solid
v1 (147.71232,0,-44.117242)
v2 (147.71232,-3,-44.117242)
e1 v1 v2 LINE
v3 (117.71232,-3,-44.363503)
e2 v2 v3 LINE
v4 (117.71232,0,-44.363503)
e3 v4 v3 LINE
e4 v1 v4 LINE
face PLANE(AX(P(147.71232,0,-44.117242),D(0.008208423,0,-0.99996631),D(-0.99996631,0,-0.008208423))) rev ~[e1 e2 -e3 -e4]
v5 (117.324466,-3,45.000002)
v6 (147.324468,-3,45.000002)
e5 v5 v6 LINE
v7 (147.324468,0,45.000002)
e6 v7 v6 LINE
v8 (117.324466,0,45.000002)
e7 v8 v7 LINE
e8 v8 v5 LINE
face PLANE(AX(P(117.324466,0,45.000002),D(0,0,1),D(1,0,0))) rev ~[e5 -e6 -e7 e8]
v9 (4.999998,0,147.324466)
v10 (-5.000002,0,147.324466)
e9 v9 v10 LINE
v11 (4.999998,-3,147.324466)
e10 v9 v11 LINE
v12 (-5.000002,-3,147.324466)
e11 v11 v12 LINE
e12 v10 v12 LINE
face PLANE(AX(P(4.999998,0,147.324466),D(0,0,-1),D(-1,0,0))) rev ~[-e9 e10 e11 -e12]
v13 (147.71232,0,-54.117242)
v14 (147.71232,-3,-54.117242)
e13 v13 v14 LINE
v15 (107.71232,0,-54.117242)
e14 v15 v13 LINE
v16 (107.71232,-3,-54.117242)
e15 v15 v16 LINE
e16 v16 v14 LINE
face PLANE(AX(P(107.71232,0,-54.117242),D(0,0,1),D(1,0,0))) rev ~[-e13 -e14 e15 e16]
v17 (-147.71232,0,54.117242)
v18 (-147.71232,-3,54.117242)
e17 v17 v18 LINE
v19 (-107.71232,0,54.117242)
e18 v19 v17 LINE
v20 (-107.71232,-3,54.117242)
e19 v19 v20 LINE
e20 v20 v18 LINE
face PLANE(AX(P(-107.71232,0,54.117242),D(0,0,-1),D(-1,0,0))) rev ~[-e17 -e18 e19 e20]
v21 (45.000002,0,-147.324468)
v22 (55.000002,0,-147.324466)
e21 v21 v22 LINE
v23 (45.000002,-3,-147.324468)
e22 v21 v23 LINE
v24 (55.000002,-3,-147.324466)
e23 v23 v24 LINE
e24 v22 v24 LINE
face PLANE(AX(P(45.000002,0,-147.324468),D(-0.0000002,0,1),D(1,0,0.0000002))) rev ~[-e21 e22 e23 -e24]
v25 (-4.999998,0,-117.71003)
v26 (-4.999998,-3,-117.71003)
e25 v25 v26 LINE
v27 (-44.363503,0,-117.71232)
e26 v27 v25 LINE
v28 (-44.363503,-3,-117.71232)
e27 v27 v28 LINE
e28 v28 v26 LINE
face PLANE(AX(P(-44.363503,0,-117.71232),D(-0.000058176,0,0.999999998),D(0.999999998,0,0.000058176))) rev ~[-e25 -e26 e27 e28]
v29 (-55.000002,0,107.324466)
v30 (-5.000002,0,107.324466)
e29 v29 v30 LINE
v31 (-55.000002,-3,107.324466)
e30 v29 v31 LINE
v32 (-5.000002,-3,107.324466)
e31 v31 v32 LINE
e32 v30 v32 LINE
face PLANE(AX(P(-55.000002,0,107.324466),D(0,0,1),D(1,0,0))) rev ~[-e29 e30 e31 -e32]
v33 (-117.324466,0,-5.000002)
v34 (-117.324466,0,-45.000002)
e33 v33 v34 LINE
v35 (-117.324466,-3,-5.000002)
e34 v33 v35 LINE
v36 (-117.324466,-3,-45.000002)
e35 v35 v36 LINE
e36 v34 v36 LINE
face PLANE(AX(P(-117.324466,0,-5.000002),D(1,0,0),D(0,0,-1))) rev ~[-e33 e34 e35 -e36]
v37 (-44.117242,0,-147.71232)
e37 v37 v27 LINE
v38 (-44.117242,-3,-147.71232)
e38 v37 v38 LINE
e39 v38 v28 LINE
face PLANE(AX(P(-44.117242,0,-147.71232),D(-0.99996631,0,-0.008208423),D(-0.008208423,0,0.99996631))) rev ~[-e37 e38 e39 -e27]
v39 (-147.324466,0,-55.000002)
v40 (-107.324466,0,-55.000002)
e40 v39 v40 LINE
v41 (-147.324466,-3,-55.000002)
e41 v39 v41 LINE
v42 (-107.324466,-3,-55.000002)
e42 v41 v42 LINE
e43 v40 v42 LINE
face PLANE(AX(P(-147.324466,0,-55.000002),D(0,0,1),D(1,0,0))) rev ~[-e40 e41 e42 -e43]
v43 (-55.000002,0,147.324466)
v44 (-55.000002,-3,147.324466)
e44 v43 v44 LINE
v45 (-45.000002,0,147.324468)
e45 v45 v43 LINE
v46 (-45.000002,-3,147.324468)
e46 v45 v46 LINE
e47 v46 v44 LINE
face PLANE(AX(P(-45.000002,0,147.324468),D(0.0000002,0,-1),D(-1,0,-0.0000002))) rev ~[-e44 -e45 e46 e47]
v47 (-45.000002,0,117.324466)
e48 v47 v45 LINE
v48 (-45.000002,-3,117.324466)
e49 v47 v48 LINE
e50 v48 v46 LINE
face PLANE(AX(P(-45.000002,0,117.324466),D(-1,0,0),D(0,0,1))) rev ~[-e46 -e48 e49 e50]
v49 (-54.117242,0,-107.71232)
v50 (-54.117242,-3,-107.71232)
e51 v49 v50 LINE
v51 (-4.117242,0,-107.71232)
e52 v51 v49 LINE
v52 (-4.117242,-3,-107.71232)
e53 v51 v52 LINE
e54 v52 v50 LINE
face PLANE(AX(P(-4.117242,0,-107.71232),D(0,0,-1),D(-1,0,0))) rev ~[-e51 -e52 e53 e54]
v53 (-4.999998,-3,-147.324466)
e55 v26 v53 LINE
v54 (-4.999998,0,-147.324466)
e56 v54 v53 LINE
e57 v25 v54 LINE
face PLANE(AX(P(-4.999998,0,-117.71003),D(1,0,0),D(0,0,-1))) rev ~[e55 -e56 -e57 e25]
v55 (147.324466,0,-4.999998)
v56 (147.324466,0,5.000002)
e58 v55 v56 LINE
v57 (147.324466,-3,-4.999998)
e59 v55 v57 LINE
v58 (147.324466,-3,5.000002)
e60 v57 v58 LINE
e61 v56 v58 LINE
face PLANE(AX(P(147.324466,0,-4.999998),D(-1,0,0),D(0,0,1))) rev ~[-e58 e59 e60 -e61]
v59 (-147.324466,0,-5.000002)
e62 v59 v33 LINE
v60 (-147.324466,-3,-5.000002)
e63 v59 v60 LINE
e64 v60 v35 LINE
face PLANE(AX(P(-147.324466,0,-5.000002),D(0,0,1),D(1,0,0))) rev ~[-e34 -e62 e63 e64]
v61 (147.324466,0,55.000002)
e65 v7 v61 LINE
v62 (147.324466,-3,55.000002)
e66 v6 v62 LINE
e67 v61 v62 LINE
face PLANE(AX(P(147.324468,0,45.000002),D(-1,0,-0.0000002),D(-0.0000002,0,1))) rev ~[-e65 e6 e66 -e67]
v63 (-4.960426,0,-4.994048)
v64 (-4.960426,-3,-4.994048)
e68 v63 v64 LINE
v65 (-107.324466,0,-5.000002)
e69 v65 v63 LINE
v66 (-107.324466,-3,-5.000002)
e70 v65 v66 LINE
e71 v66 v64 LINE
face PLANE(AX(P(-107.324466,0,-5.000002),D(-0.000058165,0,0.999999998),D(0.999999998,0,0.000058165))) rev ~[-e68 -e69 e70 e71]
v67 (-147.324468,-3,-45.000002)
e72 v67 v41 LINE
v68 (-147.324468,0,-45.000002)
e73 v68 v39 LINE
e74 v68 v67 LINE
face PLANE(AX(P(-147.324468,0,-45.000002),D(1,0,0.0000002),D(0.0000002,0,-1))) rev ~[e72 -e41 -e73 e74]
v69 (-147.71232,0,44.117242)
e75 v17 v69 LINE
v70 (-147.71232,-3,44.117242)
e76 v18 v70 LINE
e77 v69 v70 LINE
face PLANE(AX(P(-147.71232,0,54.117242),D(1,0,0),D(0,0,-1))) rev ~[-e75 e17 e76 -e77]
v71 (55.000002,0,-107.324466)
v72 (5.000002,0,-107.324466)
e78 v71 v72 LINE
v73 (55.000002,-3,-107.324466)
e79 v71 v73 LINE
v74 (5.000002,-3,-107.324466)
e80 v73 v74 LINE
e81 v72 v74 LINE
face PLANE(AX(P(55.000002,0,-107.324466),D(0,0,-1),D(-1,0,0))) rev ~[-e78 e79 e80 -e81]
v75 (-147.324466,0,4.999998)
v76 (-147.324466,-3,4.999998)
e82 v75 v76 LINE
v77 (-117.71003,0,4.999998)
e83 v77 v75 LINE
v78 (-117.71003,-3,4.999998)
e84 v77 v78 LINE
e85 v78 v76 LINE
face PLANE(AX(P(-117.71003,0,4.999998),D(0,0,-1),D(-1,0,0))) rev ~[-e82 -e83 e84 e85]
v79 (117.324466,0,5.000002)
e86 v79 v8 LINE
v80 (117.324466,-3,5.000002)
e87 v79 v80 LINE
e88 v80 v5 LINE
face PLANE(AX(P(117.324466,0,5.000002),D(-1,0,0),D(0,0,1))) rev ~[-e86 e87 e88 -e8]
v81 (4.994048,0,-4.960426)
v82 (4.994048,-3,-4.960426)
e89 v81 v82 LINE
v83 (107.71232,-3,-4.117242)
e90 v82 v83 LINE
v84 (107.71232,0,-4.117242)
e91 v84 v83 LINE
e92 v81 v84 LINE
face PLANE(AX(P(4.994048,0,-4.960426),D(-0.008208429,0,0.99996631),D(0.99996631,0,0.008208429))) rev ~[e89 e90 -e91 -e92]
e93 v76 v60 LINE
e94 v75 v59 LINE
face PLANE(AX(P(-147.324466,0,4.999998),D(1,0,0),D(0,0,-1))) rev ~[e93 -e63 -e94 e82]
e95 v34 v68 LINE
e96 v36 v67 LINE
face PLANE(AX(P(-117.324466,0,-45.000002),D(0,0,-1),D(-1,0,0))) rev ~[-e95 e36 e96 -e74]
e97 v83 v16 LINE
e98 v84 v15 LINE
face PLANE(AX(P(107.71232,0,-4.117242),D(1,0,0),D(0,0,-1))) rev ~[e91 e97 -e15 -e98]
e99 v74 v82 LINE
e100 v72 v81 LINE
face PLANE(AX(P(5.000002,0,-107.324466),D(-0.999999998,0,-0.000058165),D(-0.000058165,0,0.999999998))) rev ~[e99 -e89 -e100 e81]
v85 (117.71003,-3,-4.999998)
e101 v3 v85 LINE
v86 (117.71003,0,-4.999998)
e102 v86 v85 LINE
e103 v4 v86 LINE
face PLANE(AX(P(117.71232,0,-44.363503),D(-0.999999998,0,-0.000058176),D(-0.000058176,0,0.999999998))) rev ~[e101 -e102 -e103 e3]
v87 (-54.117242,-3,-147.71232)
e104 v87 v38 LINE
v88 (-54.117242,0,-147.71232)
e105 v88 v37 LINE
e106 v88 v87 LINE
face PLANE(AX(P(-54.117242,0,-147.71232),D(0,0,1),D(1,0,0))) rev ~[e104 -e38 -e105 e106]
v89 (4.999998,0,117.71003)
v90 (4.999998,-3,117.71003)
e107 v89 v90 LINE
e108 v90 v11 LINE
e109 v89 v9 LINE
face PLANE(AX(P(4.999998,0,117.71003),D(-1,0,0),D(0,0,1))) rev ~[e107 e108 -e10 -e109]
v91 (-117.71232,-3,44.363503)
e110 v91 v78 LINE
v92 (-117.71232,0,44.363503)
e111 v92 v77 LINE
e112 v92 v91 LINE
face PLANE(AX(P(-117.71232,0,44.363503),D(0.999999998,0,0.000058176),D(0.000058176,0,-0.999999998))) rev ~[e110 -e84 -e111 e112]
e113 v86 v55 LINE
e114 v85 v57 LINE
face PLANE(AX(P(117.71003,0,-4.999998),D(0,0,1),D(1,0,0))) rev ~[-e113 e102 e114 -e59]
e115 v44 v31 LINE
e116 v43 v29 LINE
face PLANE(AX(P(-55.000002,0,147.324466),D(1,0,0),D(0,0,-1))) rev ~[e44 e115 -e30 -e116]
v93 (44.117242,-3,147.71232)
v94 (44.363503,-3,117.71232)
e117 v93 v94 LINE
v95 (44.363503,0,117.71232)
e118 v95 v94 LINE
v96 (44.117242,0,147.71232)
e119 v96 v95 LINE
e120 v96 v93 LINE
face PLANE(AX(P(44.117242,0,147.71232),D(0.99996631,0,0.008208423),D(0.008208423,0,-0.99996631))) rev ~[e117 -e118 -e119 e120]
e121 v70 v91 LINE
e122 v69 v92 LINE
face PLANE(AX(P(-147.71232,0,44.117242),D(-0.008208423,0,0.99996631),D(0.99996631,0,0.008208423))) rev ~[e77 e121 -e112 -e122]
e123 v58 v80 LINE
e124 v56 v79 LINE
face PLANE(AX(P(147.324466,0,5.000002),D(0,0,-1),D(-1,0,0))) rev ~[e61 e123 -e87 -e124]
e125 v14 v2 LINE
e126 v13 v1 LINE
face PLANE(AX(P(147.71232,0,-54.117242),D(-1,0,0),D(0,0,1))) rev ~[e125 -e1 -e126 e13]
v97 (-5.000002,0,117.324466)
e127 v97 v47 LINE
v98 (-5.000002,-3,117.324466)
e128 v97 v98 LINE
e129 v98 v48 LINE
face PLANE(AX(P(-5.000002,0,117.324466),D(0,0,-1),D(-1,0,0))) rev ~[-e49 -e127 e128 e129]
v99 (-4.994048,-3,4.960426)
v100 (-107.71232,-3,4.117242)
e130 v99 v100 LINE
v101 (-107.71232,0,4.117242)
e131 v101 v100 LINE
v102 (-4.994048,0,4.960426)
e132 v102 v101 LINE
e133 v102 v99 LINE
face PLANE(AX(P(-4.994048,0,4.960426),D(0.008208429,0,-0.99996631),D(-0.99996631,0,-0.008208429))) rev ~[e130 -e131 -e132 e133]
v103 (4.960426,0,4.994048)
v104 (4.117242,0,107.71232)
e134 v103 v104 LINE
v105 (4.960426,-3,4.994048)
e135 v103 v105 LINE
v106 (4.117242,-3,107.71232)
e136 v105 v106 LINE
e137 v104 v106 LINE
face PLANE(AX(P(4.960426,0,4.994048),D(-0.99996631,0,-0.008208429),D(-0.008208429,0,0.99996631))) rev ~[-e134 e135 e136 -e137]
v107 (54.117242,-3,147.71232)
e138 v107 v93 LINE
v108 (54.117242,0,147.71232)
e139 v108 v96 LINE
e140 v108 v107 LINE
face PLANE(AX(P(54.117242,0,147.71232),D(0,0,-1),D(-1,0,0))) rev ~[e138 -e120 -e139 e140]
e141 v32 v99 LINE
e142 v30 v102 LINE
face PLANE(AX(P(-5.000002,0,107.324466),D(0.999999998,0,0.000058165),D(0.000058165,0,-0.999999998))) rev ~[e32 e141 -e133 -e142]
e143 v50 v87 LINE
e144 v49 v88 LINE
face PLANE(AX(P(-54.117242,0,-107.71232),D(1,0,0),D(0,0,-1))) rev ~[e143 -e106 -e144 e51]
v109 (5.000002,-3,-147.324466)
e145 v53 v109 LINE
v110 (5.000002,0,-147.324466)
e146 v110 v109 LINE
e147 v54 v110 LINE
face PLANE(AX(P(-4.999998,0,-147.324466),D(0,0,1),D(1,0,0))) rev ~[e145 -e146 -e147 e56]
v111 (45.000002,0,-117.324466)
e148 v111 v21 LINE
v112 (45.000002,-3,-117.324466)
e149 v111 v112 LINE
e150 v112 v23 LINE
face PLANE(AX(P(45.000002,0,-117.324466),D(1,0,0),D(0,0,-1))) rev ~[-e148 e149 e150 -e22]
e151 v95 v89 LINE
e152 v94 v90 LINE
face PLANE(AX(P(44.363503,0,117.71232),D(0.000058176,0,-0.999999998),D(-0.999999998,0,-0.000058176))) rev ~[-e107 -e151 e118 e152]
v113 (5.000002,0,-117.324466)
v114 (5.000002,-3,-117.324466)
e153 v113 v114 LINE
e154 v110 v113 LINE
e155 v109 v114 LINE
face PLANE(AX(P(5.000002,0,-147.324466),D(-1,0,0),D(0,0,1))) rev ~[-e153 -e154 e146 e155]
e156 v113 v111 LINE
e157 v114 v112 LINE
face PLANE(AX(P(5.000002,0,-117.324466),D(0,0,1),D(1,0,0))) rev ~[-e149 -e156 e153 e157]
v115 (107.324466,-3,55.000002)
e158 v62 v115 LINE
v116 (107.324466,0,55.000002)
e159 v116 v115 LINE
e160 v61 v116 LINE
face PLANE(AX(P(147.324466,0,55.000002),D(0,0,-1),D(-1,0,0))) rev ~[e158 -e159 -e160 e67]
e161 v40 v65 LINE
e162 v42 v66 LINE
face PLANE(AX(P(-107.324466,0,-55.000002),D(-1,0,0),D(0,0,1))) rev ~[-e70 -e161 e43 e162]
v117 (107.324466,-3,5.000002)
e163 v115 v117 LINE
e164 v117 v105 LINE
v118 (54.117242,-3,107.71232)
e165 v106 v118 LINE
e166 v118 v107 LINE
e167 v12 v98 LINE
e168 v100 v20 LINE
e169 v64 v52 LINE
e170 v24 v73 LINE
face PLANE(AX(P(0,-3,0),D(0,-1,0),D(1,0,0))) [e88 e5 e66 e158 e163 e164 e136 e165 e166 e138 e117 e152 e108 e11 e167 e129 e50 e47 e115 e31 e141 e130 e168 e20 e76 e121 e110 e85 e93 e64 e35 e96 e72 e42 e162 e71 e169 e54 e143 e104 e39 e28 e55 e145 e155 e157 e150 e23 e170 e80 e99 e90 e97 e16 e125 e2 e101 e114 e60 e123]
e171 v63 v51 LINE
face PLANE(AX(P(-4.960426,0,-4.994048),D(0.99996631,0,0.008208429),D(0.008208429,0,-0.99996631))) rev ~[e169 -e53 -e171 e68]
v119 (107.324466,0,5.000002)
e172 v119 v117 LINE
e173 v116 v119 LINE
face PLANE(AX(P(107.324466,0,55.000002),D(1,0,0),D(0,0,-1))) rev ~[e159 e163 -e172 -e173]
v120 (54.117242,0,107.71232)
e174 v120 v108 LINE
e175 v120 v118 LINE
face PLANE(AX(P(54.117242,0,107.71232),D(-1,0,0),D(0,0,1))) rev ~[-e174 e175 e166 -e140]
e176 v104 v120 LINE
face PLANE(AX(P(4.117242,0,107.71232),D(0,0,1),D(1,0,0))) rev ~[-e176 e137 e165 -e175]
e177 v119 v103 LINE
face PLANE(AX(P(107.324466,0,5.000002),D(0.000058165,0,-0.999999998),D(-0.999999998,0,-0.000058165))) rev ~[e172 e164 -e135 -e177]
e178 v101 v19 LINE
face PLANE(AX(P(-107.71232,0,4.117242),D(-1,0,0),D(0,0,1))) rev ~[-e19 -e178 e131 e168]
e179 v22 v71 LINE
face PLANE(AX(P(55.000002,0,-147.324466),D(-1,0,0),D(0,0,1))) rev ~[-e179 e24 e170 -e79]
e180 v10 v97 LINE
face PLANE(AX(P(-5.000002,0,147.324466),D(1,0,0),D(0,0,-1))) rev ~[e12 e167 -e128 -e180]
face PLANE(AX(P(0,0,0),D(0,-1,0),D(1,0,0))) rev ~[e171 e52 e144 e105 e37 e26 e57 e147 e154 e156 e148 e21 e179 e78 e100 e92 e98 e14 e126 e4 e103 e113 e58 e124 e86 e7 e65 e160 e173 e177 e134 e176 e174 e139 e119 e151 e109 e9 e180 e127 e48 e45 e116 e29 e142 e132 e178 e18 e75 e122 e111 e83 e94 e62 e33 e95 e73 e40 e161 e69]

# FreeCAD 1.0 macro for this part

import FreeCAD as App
import Part
import Sketcher

V = App.Vector


def add_polygon(sketch, points):
    """Adds a closed chain of lines whose ends are joined by coincident constraints."""
    first, n = sketch.GeometryCount, len(points)
    for a, b in zip(points, points[1:] + points[:1]):
        sketch.addGeometry(Part.LineSegment(App.Vector(*a, 0), App.Vector(*b, 0)), False)
    for i in range(n):
        sketch.addConstraint(Sketcher.Constraint("Coincident", first + i, 2, first + (i + 1) % n, 1))

doc = App.newDocument("Part")
body = doc.addObject("PartDesign::Body", "Body")

sketch1 = doc.addObject("Sketcher::SketchObject", "Sketch")
body.addObject(sketch1)
sketch1.AttachmentSupport = (doc.XZ_Plane, [""])
sketch1.MapMode = "FlatFace"
add_polygon(sketch1, [(5, 147), (-5, 147), (-5, 117), (-45, 117), (-45, 147), (-55, 147), (-55, 107), (-5, 107), (-5, 5), (-108, 4), (-108, 54), (-148, 54), (-148, 44), (-118, 44), (-118, 5), (-147, 5), (-147, -5), (-117, -5), (-117, -45), (-147, -45), (-147, -55), (-107, -55), (-107, -5), (-5, -5), (-4, -108), (-54, -108), (-54, -148), (-44, -148), (-44, -118), (-5, -118), (-5, -147), (5, -147), (5, -117), (45, -117), (45, -147), (55, -147), (55, -107), (5, -107), (5, -5), (108, -4), (108, -54), (148, -54), (148, -44), (118, -44), (118, -5), (147, -5), (147, 5), (117, 5), (117, 45), (147, 45), (147, 55), (107, 55), (107, 5), (5, 5), (4, 108), (54, 108), (54, 148), (44, 148), (44, 118), (5, 118)])
sketch1.addConstraint([
    Sketcher.Constraint("Horizontal", 0),
    Sketcher.Constraint("Vertical", 1),
    Sketcher.Constraint("Horizontal", 2),
    Sketcher.Constraint("Vertical", 3),
    Sketcher.Constraint("Horizontal", 4),
    Sketcher.Constraint("Vertical", 5),
    Sketcher.Constraint("Horizontal", 6),
    Sketcher.Constraint("Vertical", 9),
    Sketcher.Constraint("Horizontal", 10),
    Sketcher.Constraint("Vertical", 11),
    Sketcher.Constraint("Horizontal", 14),
    Sketcher.Constraint("Vertical", 15),
    Sketcher.Constraint("Horizontal", 16),
    Sketcher.Constraint("Vertical", 17),
    Sketcher.Constraint("Horizontal", 18),
    Sketcher.Constraint("Vertical", 19),
    Sketcher.Constraint("Horizontal", 20),
    Sketcher.Constraint("Vertical", 21),
    Sketcher.Constraint("Horizontal", 24),
    Sketcher.Constraint("Vertical", 25),
    Sketcher.Constraint("Horizontal", 26),
    Sketcher.Constraint("Vertical", 29),
    Sketcher.Constraint("Horizontal", 30),
    Sketcher.Constraint("Vertical", 31),
    Sketcher.Constraint("Horizontal", 32),
    Sketcher.Constraint("Vertical", 33),
    Sketcher.Constraint("Horizontal", 34),
    Sketcher.Constraint("Vertical", 35),
    Sketcher.Constraint("Horizontal", 36),
    Sketcher.Constraint("Vertical", 39),
    Sketcher.Constraint("Horizontal", 40),
    Sketcher.Constraint("Vertical", 41),
    Sketcher.Constraint("Horizontal", 44),
    Sketcher.Constraint("Vertical", 45),
    Sketcher.Constraint("Horizontal", 46),
    Sketcher.Constraint("Vertical", 47),
    Sketcher.Constraint("Horizontal", 48),
    Sketcher.Constraint("Vertical", 49),
    Sketcher.Constraint("Horizontal", 50),
    Sketcher.Constraint("Vertical", 51),
    Sketcher.Constraint("Horizontal", 54),
    Sketcher.Constraint("Vertical", 55),
    Sketcher.Constraint("Horizontal", 56),
    Sketcher.Constraint("Vertical", 59),
    Sketcher.Constraint("Symmetric", 0, 2, 30, 2, -1, 1),
    Sketcher.Constraint("Symmetric", 2, 2, 32, 2, -1, 1),
    Sketcher.Constraint("Symmetric", 4, 2, 34, 2, -1, 1),
    Sketcher.Constraint("Symmetric", 6, 2, 36, 2, -1, 1),
    Sketcher.Constraint("Symmetric", 7, 2, 37, 2, -1, 1),
    Sketcher.Constraint("Symmetric", 8, 2, 38, 2, -1, 1),
    Sketcher.Constraint("Symmetric", 10, 2, 40, 2, -1, 1),
    Sketcher.Constraint("Symmetric", 12, 2, 42, 2, -1, 1),
    Sketcher.Constraint("Symmetric", 13, 2, 43, 2, -1, 1),
    Sketcher.Constraint("Symmetric", 15, 2, 45, 2, -1, 1),
    Sketcher.Constraint("Symmetric", 17, 2, 47, 2, -1, 1),
    Sketcher.Constraint("Symmetric", 19, 2, 49, 2, -1, 1),
    Sketcher.Constraint("Symmetric", 21, 2, 51, 2, -1, 1),
    Sketcher.Constraint("Symmetric", 22, 2, 52, 2, -1, 1),
    Sketcher.Constraint("Symmetric", 23, 2, 53, 2, -1, 1),
    Sketcher.Constraint("Symmetric", 25, 2, 55, 2, -1, 1),
    Sketcher.Constraint("Symmetric", 27, 2, 57, 2, -1, 1),
    Sketcher.Constraint("Symmetric", 28, 2, 58, 2, -1, 1),
    Sketcher.Constraint("Parallel", 8, 12),
    Sketcher.Constraint("Parallel", 7, 13),
    Sketcher.Constraint("Perpendicular", 13, 22),
    Sketcher.Constraint("Perpendicular", 12, 23),
    Sketcher.Constraint("Parallel", 23, 27),
    Sketcher.Constraint("Parallel", 22, 28),
    Sketcher.Constraint("Parallel", 38, 42),
    Sketcher.Constraint("Parallel", 53, 57),
    Sketcher.Constraint("Horizontal", 0, 2, 3, 2),
    Sketcher.Constraint("Horizontal", 16, 2, 21, 2),
    Sketcher.Constraint("Vertical", 1, 2, 6, 2),
    Sketcher.Constraint("Vertical", 15, 2, 18, 2),
    Sketcher.Constraint("Equal", 0, 4),
    Sketcher.Constraint("Equal", 2, 10),
    Sketcher.Constraint("Equal", 10, 20),
    Sketcher.Constraint("Equal", 6, 24),
    Sketcher.Constraint("Equal", 4, 26),
    Sketcher.Constraint("Equal", 48, 1),
    Sketcher.Constraint("Equal", 50, 5),
    Sketcher.Constraint("Equal", 54, 9),
    Sketcher.Constraint("Equal", 56, 11),
    Sketcher.Constraint("Equal", 11, 15),
    Sketcher.Constraint("Equal", 5, 17),
    Sketcher.Constraint("Equal", 15, 19),
    Sketcher.Constraint("Equal", 17, 25),
    Sketcher.Constraint("Equal", 44, 29),
    Sketcher.Constraint("Equal", 7, 22),
    Sketcher.Constraint("Equal", 8, 23),
    Sketcher.Constraint("Equal", 12, 27),
    Sketcher.Constraint("Equal", 13, 28),
    Sketcher.Constraint("DistanceX", 0, 2, 0, 1, 10.0),
    Sketcher.Constraint("DistanceX", 2, 2, 2, 1, 40.0),
    Sketcher.Constraint("DistanceX", 16, 1, 16, 2, 30.0),
    Sketcher.Constraint("DistanceX", 12, 2, 9, 2, 10.0),
    Sketcher.Constraint("Distance", 7, 102.36404),
    Sketcher.Constraint("DistanceX", 14, 2, 14, 1, 29.614436),
    Sketcher.Constraint("DistanceY", -1, 1, 3, 2, 147.324468),
    Sketcher.Constraint("DistanceX", 7, 2, -1, 1, 4.994048),
    Sketcher.Constraint("DistanceX", 8, 2, -1, 1, 107.71232),
    Sketcher.Constraint("DistanceY", -1, 1, 9, 2, 54.117242),
])
pad1 = doc.addObject("PartDesign::Pad", "Pad")
body.addObject(pad1)
pad1.Profile = sketch1
pad1.Length = 3

doc.recompute()
